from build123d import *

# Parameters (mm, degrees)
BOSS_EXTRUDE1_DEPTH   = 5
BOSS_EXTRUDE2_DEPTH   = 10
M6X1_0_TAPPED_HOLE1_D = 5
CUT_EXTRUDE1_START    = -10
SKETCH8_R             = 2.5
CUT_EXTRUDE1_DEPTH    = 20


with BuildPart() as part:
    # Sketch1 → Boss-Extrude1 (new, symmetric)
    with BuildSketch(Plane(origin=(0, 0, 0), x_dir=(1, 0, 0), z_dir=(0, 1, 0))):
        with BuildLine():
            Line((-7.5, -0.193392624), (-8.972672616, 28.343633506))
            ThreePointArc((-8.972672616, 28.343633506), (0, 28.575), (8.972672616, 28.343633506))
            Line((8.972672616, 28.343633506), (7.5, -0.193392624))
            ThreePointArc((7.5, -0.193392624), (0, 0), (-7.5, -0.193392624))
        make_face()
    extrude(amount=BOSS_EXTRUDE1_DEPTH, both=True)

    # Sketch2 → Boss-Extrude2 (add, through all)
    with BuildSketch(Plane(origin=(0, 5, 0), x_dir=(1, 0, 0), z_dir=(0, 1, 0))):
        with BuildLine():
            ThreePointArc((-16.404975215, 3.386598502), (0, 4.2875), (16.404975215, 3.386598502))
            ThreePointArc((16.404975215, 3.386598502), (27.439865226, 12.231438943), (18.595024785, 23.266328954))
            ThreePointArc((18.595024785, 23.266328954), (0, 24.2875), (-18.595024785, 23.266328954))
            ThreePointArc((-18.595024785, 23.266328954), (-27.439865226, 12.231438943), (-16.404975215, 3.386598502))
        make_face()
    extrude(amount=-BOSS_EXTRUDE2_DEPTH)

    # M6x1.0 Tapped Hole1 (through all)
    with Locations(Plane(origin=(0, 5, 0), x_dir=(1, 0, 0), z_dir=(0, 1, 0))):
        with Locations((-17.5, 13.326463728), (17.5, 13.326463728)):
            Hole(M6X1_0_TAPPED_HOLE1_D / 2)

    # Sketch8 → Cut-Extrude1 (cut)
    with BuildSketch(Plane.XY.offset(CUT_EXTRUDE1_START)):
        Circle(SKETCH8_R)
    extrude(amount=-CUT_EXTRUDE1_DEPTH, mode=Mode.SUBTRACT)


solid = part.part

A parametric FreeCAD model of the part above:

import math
import FreeCAD as App
import Part
import Sketcher
from FreeCAD import Vector
Q = App.Units.Quantity

doc = App.newDocument("Part")
body = doc.addObject("PartDesign::Body", "Body")

sketch1 = body.newObject("Sketcher::SketchObject", "Sketch")
sketch1.AttachmentSupport = (doc.getObject("XZ_Plane"), [""])
sketch1.MapMode = "FlatFace"
sketch1.addGeometry(Part.LineSegment(Vector(-9, -28, 0), Vector(-8, 0, 0)), False)
sketch1.addGeometry(Part.ArcOfCircle(Part.Circle(Vector(0, 146, 0), Vector(0, 0, 1), 146), math.radians(-92.95), math.radians(-87.05)), False)
sketch1.addGeometry(Part.LineSegment(Vector(8, 0, 0), Vector(9, -28, 0)), False)
sketch1.addGeometry(Part.ArcOfCircle(Part.Circle(Vector(0, 146, 0), Vector(0, 0, 1), 174), math.radians(-92.95), math.radians(-87.05)), False)
sketch1.addConstraint(Sketcher.Constraint("Coincident", 0, 2, 1, 1))
sketch1.addConstraint(Sketcher.Constraint("Coincident", 1, 2, 2, 1))
sketch1.addConstraint(Sketcher.Constraint("Coincident", 2, 2, 3, 2))
sketch1.addConstraint(Sketcher.Constraint("Coincident", 3, 1, 0, 1))
sketch1.addConstraint(Sketcher.Constraint("Coincident", 3, 3, 1, 3))
sketch1.addConstraint(Sketcher.Constraint("Symmetric", 0, 2, 1, 2, -2))
sketch1.addConstraint(Sketcher.Constraint("Horizontal", 2, 2, 3, 1))
sketch1.addConstraint(Sketcher.Constraint("DistanceX", 0, 2, 1, 2, Q("15 mm")))
sketch1.addConstraint(Sketcher.Constraint("Distance", 0, Q("28.575 mm")))
sketch1.addConstraint(Sketcher.Constraint("Radius", 1, Q("145.526235 mm")))
sketch1.addConstraint(Sketcher.Constraint("DistanceY", 2, 2, 1, 3, Q("173.869868 mm")))
sketch1.addConstraint(Sketcher.Constraint("DistanceY", -1, 1, 1, 3, Q("145.526235 mm")))
pad1 = body.newObject("PartDesign::Pad", "Pad")
pad1.Profile = sketch1
pad1.Length = 10
pad1.Midplane = True

sketch2 = body.newObject("Sketcher::SketchObject", "Sketch001")
sketch2.AttachmentSupport = (doc.getObject("XZ_Plane"), [""])
sketch2.MapMode = "FlatFace"
sketch2.AttachmentOffset = App.Placement(Vector(0, 0, -5), App.Rotation())
sketch2.addGeometry(Part.ArcOfCircle(Part.Circle(Vector(0, 146, 0), Vector(0, 0, 1), 150), math.radians(-96.29), math.radians(-83.71)), False)
sketch2.addGeometry(Part.ArcOfCircle(Part.Circle(Vector(18, -13, 0), Vector(0, 0, 1), 10), math.radians(-84), math.radians(96)), False)
sketch2.addGeometry(Part.ArcOfCircle(Part.Circle(Vector(0, 146, 0), Vector(0, 0, 1), 170), math.radians(-96.29), math.radians(-83.71)), False)
sketch2.addGeometry(Part.ArcOfCircle(Part.Circle(Vector(-18, -13, 0), Vector(0, 0, 1), 10), math.radians(84), math.radians(264)), False)
sketch2.addConstraint(Sketcher.Constraint("Tangent", 0, 2, 1, 2))
sketch2.addConstraint(Sketcher.Constraint("Tangent", 1, 1, 2, 2))
sketch2.addConstraint(Sketcher.Constraint("Tangent", 2, 1, 3, 2))
sketch2.addConstraint(Sketcher.Constraint("Tangent", 3, 1, 0, 1))
sketch2.addConstraint(Sketcher.Constraint("Coincident", 2, 3, 0, 3))
sketch2.addConstraint(Sketcher.Constraint("Symmetric", 1, 3, 3, 3, -2))
sketch2.addConstraint(Sketcher.Constraint("Radius", 1, Q("10 mm")))
sketch2.addConstraint(Sketcher.Constraint("DistanceX", 3, 3, 1, 3, Q("35 mm")))
sketch2.addConstraint(Sketcher.Constraint("Radius", 0, Q("149.813734 mm")))
sketch2.addConstraint(Sketcher.Constraint("DistanceY", 0, 2, -1, 1, Q("3.386599 mm")))
pad2 = body.newObject("PartDesign::Pad", "Pad001")
pad2.Profile = sketch2
pad2.Type = "UpToLast"

sketch3 = body.newObject("Sketcher::SketchObject", "Sketch002")
sketch3.AttachmentSupport = (doc.getObject("XZ_Plane"), [""])
sketch3.MapMode = "FlatFace"
sketch3.AttachmentOffset = App.Placement(Vector(0, 0, -5), App.Rotation())
sketch3.addGeometry(Part.Circle(Vector(-17.5, -13.3, 0), Vector(0, 0, 1), 2.5), False)
sketch3.addGeometry(Part.Circle(Vector(17.5, -13.3, 0), Vector(0, 0, 1), 2.5), False)
sketch3.addConstraint(Sketcher.Constraint("Equal", 0, 1))
sketch3.addConstraint(Sketcher.Constraint("Symmetric", 0, 3, 1, 3, -2))
sketch3.addConstraint(Sketcher.Constraint("Diameter", 0, Q("5 mm")))
sketch3.addConstraint(Sketcher.Constraint("DistanceX", 0, 3, 1, 3, Q("35 mm")))
sketch3.addConstraint(Sketcher.Constraint("DistanceY", 0, 3, -1, 1, Q("13.326464 mm")))
doc.recompute()
hole = body.newObject("PartDesign::Hole", "Hole")
hole.Profile = sketch3
hole.ThreadType = "None"
hole.Diameter = 5
hole.DepthType = "ThroughAll"
hole.Reversed = True

sketch4 = body.newObject("Sketcher::SketchObject", "Sketch003")
sketch4.AttachmentSupport = (doc.getObject("XY_Plane"), [""])
sketch4.MapMode = "FlatFace"
sketch4.AttachmentOffset = App.Placement(Vector(0, 0, -10), App.Rotation())
sketch4.addGeometry(Part.Circle(Vector(0, 0, 0), Vector(0, 0, 1), 2.5), False)
sketch4.addConstraint(Sketcher.Constraint("Coincident", 0, 3, -1, 1))
sketch4.addConstraint(Sketcher.Constraint("Diameter", 0, Q("5 mm")))
pocket1 = body.newObject("PartDesign::Pocket", "Pocket")
pocket1.Profile = sketch4
pocket1.Length = 20

doc.recompute()
